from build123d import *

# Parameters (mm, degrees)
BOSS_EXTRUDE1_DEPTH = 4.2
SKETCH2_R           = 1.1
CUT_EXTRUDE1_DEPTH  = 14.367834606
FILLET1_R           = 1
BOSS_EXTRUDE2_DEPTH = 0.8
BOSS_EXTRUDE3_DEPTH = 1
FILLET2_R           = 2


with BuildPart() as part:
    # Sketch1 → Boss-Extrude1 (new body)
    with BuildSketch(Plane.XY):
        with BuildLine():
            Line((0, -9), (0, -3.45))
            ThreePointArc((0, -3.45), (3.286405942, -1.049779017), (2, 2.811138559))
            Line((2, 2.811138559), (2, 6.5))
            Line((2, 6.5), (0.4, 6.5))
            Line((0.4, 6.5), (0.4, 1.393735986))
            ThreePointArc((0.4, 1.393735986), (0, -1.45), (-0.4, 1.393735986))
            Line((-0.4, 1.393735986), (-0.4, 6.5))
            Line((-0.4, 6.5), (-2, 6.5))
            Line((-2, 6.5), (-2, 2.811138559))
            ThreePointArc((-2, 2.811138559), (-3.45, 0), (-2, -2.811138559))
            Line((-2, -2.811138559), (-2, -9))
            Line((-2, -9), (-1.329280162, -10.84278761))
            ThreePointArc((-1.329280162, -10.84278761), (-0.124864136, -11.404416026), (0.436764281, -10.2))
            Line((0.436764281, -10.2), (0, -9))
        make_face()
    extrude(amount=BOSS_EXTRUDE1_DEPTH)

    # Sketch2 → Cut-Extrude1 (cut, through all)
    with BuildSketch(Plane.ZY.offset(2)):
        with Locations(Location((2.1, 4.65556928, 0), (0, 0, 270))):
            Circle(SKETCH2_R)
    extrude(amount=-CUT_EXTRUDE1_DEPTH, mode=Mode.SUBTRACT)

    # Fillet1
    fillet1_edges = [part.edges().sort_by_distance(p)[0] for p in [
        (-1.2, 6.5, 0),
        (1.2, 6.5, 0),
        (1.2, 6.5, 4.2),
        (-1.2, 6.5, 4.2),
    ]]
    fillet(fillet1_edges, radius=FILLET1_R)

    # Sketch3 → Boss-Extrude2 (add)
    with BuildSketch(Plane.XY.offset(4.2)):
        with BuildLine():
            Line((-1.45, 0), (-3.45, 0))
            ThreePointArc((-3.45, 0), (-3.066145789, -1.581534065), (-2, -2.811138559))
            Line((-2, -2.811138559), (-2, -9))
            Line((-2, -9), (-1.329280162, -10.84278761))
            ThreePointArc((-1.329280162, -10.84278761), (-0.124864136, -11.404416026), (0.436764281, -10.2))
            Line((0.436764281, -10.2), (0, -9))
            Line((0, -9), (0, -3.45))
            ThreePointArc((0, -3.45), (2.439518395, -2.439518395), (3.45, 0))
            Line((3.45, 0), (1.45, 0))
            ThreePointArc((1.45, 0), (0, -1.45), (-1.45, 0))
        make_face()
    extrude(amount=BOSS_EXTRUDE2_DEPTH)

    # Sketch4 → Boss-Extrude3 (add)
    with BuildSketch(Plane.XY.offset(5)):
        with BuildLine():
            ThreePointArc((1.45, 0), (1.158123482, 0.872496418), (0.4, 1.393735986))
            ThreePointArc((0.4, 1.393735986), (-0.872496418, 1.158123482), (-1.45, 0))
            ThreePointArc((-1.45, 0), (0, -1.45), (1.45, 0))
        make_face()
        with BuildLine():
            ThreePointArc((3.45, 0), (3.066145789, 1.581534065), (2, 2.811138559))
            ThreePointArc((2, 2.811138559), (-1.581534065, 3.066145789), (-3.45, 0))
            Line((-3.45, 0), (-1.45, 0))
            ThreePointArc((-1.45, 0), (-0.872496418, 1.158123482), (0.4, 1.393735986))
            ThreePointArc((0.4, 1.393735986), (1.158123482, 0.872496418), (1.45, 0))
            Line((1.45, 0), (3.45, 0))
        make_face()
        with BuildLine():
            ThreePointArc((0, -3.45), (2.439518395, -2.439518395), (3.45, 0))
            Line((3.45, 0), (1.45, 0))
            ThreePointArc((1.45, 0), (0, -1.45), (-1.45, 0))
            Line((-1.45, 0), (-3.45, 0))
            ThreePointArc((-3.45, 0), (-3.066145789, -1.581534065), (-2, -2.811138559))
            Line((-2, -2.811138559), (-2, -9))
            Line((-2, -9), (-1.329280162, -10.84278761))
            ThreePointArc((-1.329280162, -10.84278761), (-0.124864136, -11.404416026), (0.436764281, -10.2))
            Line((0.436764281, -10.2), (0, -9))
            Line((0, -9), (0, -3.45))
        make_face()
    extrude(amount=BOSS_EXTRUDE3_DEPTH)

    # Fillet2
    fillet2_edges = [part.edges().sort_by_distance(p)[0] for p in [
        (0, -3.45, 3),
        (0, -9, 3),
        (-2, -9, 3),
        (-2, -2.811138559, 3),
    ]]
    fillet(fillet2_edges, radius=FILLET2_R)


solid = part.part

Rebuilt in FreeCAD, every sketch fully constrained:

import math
import FreeCAD as App
import Part
import Sketcher

V = App.Vector
Q = App.Units.Quantity


def edges_at(feature, points):
    """Names of the edges that pass closest to the given points."""
    edges = feature.Shape.Edges
    near = lambda p: min(range(len(edges)), key=lambda i: edges[i].distToShape(Part.Vertex(*p))[0])
    return sorted({f"Edge{near(p) + 1}" for p in points})

doc = App.newDocument("Part")
params = doc.addObject("Spreadsheet::Sheet", "Params")
for row, (alias, value) in enumerate([
    ("sketch1_radius", "3.45 mm"),
    ("sketch1_radius2", "1.45 mm"),
    ("sketch1_width", "1.6 mm"),
    ("pad1_length", "4.2 mm"),
    ("sketch2_diameter", "2.2 mm"),
    ("fillet_radius", "1 mm"),
    ("sketch3_width", "2 mm"),
    ("sketch3_radius", "3.45 mm"),
    ("pad2_length", "0.8 mm"),
    ("sketch4_radius", "3.45 mm"),
    ("pad3_length", "1 mm"),
    ("fillet2_radius", "2 mm"),
], start=1):
    params.set(f"A{row}", alias)
    params.set(f"B{row}", "=" + value)
    params.setAlias(f"B{row}", alias)

body = doc.addObject("PartDesign::Body", "Body")

sketch1 = body.newObject("Sketcher::SketchObject", "Sketch")
sketch1.AttachmentSupport = (doc.getObject("XY_Plane"), [""])
sketch1.MapMode = "FlatFace"
sketch1.addGeometry([
    Part.LineSegment(V(0, -9, 0), V(0, -3.45, 0)),
    Part.ArcOfCircle(Part.Circle(V(0, 0, 0), V(0, 0, 1), 3.45), math.radians(-90), math.radians(54.569842)),
    Part.LineSegment(V(2, 2.811139, 0), V(2, 6.5, 0)),
    Part.LineSegment(V(2, 6.5, 0), V(0.4, 6.5, 0)),
    Part.LineSegment(V(0.4, 6.5, 0), V(0.4, 1.393736, 0)),
    Part.ArcOfCircle(Part.Circle(V(0, 0, 0), V(0, 0, 1), 1.45), math.radians(106.013394), math.radians(433.986606)),
    Part.LineSegment(V(-0.4, 1.393736, 0), V(-0.4, 6.5, 0)),
    Part.LineSegment(V(-0.4, 6.5, 0), V(-2, 6.5, 0)),
    Part.LineSegment(V(-2, 6.5, 0), V(-2, 2.811139, 0)),
    Part.ArcOfCircle(Part.Circle(V(0, 0, 0), V(0, 0, 1), 3.45), math.radians(125.430158), math.radians(234.569842)),
    Part.LineSegment(V(-2, -2.811139, 0), V(-2, -9, 0)),
    Part.LineSegment(V(-2, -9, 0), V(-1.32928, -10.842788, 0)),
    Part.ArcOfCircle(Part.Circle(V(-0.446258, -10.521394, 0), V(0, 0, 1), 0.939693), math.radians(-160), math.radians(20)),
    Part.LineSegment(V(0.436764, -10.2, 0), V(0, -9, 0)),
], False)
sketch1.addConstraint([
    Sketcher.Constraint("Coincident", 0, 2, 1, 1),
    Sketcher.Constraint("Coincident", 1, 2, 2, 1),
    Sketcher.Constraint("Coincident", 2, 2, 3, 1),
    Sketcher.Constraint("Coincident", 3, 2, 4, 1),
    Sketcher.Constraint("Coincident", 4, 2, 5, 2),
    Sketcher.Constraint("Coincident", 5, 1, 6, 1),
    Sketcher.Constraint("Coincident", 6, 2, 7, 1),
    Sketcher.Constraint("Coincident", 7, 2, 8, 1),
    Sketcher.Constraint("Coincident", 8, 2, 9, 1),
    Sketcher.Constraint("Coincident", 9, 2, 10, 1),
    Sketcher.Constraint("Coincident", 10, 2, 11, 1),
    Sketcher.Constraint("Tangent", 11, 2, 12, 1),
    Sketcher.Constraint("Tangent", 12, 2, 13, 1),
    Sketcher.Constraint("Coincident", 13, 2, 0, 1),
    Sketcher.Constraint("Vertical", 0),
    Sketcher.Constraint("Vertical", 2),
    Sketcher.Constraint("Horizontal", 3),
    Sketcher.Constraint("Vertical", 4),
    Sketcher.Constraint("Vertical", 6),
    Sketcher.Constraint("Horizontal", 7),
    Sketcher.Constraint("Vertical", 8),
    Sketcher.Constraint("Vertical", 10),
    Sketcher.Constraint("Coincident", 1, 3, -1, 1),
    Sketcher.Constraint("Coincident", 5, 3, -1, 1),
    Sketcher.Constraint("Coincident", 9, 3, -1, 1),
    Sketcher.Constraint("Equal", 1, 9),
    Sketcher.Constraint("Symmetric", 3, 2, 6, 2, -2),
    Sketcher.Constraint("PointOnObject", 0, 2, -2),
    Sketcher.Constraint("Parallel", 11, 13),
    Sketcher.Constraint("Horizontal", 1, 2, 8, 2),
    Sketcher.Constraint("Horizontal", 10, 2, 13, 2),
    Sketcher.Constraint("Vertical", 8, 2, 9, 2),
    Sketcher.Constraint("Angle", 11, Q("-70 deg")),
    Sketcher.Constraint("Radius", 1, Q("3.45 mm")),
    Sketcher.Constraint("Radius", 5, Q("1.45 mm")),
    Sketcher.Constraint("DistanceX", 3, 2, 3, 1, Q("1.6 mm")),
    Sketcher.Constraint("DistanceX", -1, 1, 1, 2, Q("2 mm")),
    Sketcher.Constraint("DistanceY", 10, 2, -1, 1, Q("9 mm")),
    Sketcher.Constraint("DistanceY", -1, 1, 2, 2, Q("6.5 mm")),
    Sketcher.Constraint("DistanceY", 12, 2, -1, 1, Q("10.2 mm")),
])
sketch1.setExpression("Constraints[33]", "Params.sketch1_radius")
sketch1.setExpression("Constraints[34]", "Params.sketch1_radius2")
sketch1.setExpression("Constraints[35]", "Params.sketch1_width")
pad1 = body.newObject("PartDesign::Pad", "Pad")
pad1.Profile = sketch1
pad1.setExpression("Length", "Params.pad1_length")

sketch2 = body.newObject("Sketcher::SketchObject", "Sketch001")
sketch2.AttachmentSupport = (doc.getObject("YZ_Plane"), [""])
sketch2.MapMode = "FlatFace"
sketch2.AttachmentOffset = App.Placement(V(0, 0, -2), App.Rotation())
sketch2.addGeometry(Part.Circle(V(4.655569, 2.1, 0), V(0, 0, 1), 1.1), False)
sketch2.addConstraint([
    Sketcher.Constraint("Diameter", 0, Q("2.2 mm")),
    Sketcher.Constraint("DistanceY", -1, 1, 0, 3, Q("2.1 mm")),
    Sketcher.Constraint("DistanceX", -1, 1, 0, 3, Q("4.655569 mm")),
])
sketch2.setExpression("Constraints[0]", "Params.sketch2_diameter")
pocket1 = body.newObject("PartDesign::Pocket", "Pocket")
pocket1.Profile = sketch2
pocket1.Type = "ThroughAll"
pocket1.Reversed = True
doc.recompute()

fillet = body.newObject("PartDesign::Fillet", "Fillet")
fillet.Base = (pocket1, edges_at(pocket1, [
    (-1.2, 6.5, 0),
    (1.2, 6.5, 0),
    (1.2, 6.5, 4.2),
    (-1.2, 6.5, 4.2),
]))
fillet.setExpression("Radius", "Params.fillet_radius")

sketch3 = body.newObject("Sketcher::SketchObject", "Sketch002")
sketch3.AttachmentSupport = (doc.getObject("XY_Plane"), [""])
sketch3.MapMode = "FlatFace"
sketch3.AttachmentOffset = App.Placement(V(0, 0, 4.2), App.Rotation())
sketch3.addGeometry([
    Part.LineSegment(V(-1.45, 0, 0), V(-3.45, 0, 0)),
    Part.ArcOfCircle(Part.Circle(V(0, 0, 0), V(0, 0, 1), 3.45), math.radians(-180), math.radians(-125.430158)),
    Part.LineSegment(V(-2, -2.811139, 0), V(-2, -9, 0)),
    Part.LineSegment(V(-2, -9, 0), V(-1.32928, -10.842788, 0)),
    Part.ArcOfCircle(Part.Circle(V(-0.446258, -10.521394, 0), V(0, 0, 1), 0.939693), math.radians(-160), math.radians(20)),
    Part.LineSegment(V(0.436764, -10.2, 0), V(0, -9, 0)),
    Part.LineSegment(V(0, -9, 0), V(0, -3.45, 0)),
    Part.ArcOfCircle(Part.Circle(V(0, 0, 0), V(0, 0, 1), 3.45), math.radians(-90), math.radians(0)),
    Part.LineSegment(V(3.45, 0, 0), V(1.45, 0, 0)),
    Part.ArcOfCircle(Part.Circle(V(0, 0, 0), V(0, 0, 1), 1.45), math.radians(180), math.radians(360)),
], False)
sketch3.addConstraint([
    Sketcher.Constraint("Coincident", 0, 2, 1, 1),
    Sketcher.Constraint("Coincident", 1, 2, 2, 1),
    Sketcher.Constraint("Coincident", 2, 2, 3, 1),
    Sketcher.Constraint("Tangent", 3, 2, 4, 1),
    Sketcher.Constraint("Tangent", 4, 2, 5, 1),
    Sketcher.Constraint("Coincident", 5, 2, 6, 1),
    Sketcher.Constraint("Coincident", 6, 2, 7, 1),
    Sketcher.Constraint("Coincident", 7, 2, 8, 1),
    Sketcher.Constraint("Coincident", 8, 2, 9, 2),
    Sketcher.Constraint("Coincident", 9, 1, 0, 1),
    Sketcher.Constraint("Horizontal", 0),
    Sketcher.Constraint("Vertical", 2),
    Sketcher.Constraint("Vertical", 6),
    Sketcher.Constraint("Horizontal", 8),
    Sketcher.Constraint("Coincident", 1, 3, -1, 1),
    Sketcher.Constraint("Coincident", 7, 3, -1, 1),
    Sketcher.Constraint("Coincident", 9, 3, -1, 1),
    Sketcher.Constraint("Equal", 1, 7),
    Sketcher.Constraint("PointOnObject", 0, 2, -1),
    Sketcher.Constraint("PointOnObject", 5, 2, -2),
    Sketcher.Constraint("PointOnObject", 7, 2, -1),
    Sketcher.Constraint("Parallel", 3, 5),
    Sketcher.Constraint("Horizontal", 2, 2, 5, 2),
    Sketcher.Constraint("DistanceX", 0, 2, 0, 1, Q("2 mm")),
    Sketcher.Constraint("Angle", 3, Q("-70 deg")),
    Sketcher.Constraint("Radius", 1, Q("3.45 mm")),
    Sketcher.Constraint("DistanceX", 1, 2, -1, 1, Q("2 mm")),
    Sketcher.Constraint("DistanceY", 2, 2, -1, 1, Q("9 mm")),
    Sketcher.Constraint("DistanceY", 4, 2, -1, 1, Q("10.2 mm")),
])
sketch3.setExpression("Constraints[23]", "Params.sketch3_width")
sketch3.setExpression("Constraints[25]", "Params.sketch3_radius")
pad2 = body.newObject("PartDesign::Pad", "Pad001")
pad2.Profile = sketch3
pad2.setExpression("Length", "Params.pad2_length")

sketch4 = body.newObject("Sketcher::SketchObject", "Sketch003")
sketch4.AttachmentSupport = (doc.getObject("XY_Plane"), [""])
sketch4.MapMode = "FlatFace"
sketch4.AttachmentOffset = App.Placement(V(0, 0, 5), App.Rotation())
sketch4.addGeometry([
    Part.ArcOfCircle(Part.Circle(V(0, 0, 0), V(0, 0, 1), 3.45), math.radians(0), math.radians(54.569842)),
    Part.ArcOfCircle(Part.Circle(V(0, 0, 0), V(0, 0, 1), 3.45), math.radians(54.569842), math.radians(180)),
    Part.ArcOfCircle(Part.Circle(V(0, 0, 0), V(0, 0, 1), 3.45), math.radians(-180), math.radians(-125.430158)),
    Part.LineSegment(V(-2, -2.811139, 0), V(-2, -9, 0)),
    Part.LineSegment(V(-2, -9, 0), V(-1.32928, -10.842788, 0)),
    Part.ArcOfCircle(Part.Circle(V(-0.446258, -10.521394, 0), V(0, 0, 1), 0.939693), math.radians(-160), math.radians(20)),
    Part.LineSegment(V(0.436764, -10.2, 0), V(0, -9, 0)),
    Part.LineSegment(V(0, -9, 0), V(0, -3.45, 0)),
    Part.ArcOfCircle(Part.Circle(V(0, 0, 0), V(0, 0, 1), 3.45), math.radians(-90), math.radians(0)),
], False)
sketch4.addConstraint([
    Sketcher.Constraint("Tangent", 0, 2, 1, 1),
    Sketcher.Constraint("Tangent", 1, 2, 2, 1),
    Sketcher.Constraint("Coincident", 2, 2, 3, 1),
    Sketcher.Constraint("Coincident", 3, 2, 4, 1),
    Sketcher.Constraint("Tangent", 4, 2, 5, 1),
    Sketcher.Constraint("Tangent", 5, 2, 6, 1),
    Sketcher.Constraint("Coincident", 6, 2, 7, 1),
    Sketcher.Constraint("Coincident", 7, 2, 8, 1),
    Sketcher.Constraint("Tangent", 8, 2, 0, 1),
    Sketcher.Constraint("Vertical", 3),
    Sketcher.Constraint("Vertical", 7),
    Sketcher.Constraint("Coincident", 0, 3, -1, 1),
    Sketcher.Constraint("Coincident", 2, 3, -1, 1),
    Sketcher.Constraint("Equal", 2, 8),
    Sketcher.Constraint("PointOnObject", 1, 2, -1),
    Sketcher.Constraint("PointOnObject", 6, 2, -2),
    Sketcher.Constraint("PointOnObject", 8, 2, -1),
    Sketcher.Constraint("Parallel", 4, 6),
    Sketcher.Constraint("Horizontal", 3, 2, 6, 2),
    Sketcher.Constraint("Angle", 4, Q("-70 deg")),
    Sketcher.Constraint("Radius", 0, Q("3.45 mm")),
    Sketcher.Constraint("DistanceX", -1, 1, 0, 2, Q("2 mm")),
    Sketcher.Constraint("DistanceX", 2, 2, -1, 1, Q("2 mm")),
    Sketcher.Constraint("DistanceY", 3, 2, -1, 1, Q("9 mm")),
    Sketcher.Constraint("DistanceY", 5, 2, -1, 1, Q("10.2 mm")),
])
sketch4.setExpression("Constraints[20]", "Params.sketch4_radius")
pad3 = body.newObject("PartDesign::Pad", "Pad002")
pad3.Profile = sketch4
pad3.setExpression("Length", "Params.pad3_length")
doc.recompute()

fillet2 = body.newObject("PartDesign::Fillet", "Fillet001")
fillet2.Base = (pad3, edges_at(pad3, [
    (0, -3.45, 3),
    (0, -9, 3),
    (-2, -9, 3),
    (-2, -2.811, 3),
]))
fillet2.setExpression("Radius", "Params.fillet2_radius")

doc.recompute()
